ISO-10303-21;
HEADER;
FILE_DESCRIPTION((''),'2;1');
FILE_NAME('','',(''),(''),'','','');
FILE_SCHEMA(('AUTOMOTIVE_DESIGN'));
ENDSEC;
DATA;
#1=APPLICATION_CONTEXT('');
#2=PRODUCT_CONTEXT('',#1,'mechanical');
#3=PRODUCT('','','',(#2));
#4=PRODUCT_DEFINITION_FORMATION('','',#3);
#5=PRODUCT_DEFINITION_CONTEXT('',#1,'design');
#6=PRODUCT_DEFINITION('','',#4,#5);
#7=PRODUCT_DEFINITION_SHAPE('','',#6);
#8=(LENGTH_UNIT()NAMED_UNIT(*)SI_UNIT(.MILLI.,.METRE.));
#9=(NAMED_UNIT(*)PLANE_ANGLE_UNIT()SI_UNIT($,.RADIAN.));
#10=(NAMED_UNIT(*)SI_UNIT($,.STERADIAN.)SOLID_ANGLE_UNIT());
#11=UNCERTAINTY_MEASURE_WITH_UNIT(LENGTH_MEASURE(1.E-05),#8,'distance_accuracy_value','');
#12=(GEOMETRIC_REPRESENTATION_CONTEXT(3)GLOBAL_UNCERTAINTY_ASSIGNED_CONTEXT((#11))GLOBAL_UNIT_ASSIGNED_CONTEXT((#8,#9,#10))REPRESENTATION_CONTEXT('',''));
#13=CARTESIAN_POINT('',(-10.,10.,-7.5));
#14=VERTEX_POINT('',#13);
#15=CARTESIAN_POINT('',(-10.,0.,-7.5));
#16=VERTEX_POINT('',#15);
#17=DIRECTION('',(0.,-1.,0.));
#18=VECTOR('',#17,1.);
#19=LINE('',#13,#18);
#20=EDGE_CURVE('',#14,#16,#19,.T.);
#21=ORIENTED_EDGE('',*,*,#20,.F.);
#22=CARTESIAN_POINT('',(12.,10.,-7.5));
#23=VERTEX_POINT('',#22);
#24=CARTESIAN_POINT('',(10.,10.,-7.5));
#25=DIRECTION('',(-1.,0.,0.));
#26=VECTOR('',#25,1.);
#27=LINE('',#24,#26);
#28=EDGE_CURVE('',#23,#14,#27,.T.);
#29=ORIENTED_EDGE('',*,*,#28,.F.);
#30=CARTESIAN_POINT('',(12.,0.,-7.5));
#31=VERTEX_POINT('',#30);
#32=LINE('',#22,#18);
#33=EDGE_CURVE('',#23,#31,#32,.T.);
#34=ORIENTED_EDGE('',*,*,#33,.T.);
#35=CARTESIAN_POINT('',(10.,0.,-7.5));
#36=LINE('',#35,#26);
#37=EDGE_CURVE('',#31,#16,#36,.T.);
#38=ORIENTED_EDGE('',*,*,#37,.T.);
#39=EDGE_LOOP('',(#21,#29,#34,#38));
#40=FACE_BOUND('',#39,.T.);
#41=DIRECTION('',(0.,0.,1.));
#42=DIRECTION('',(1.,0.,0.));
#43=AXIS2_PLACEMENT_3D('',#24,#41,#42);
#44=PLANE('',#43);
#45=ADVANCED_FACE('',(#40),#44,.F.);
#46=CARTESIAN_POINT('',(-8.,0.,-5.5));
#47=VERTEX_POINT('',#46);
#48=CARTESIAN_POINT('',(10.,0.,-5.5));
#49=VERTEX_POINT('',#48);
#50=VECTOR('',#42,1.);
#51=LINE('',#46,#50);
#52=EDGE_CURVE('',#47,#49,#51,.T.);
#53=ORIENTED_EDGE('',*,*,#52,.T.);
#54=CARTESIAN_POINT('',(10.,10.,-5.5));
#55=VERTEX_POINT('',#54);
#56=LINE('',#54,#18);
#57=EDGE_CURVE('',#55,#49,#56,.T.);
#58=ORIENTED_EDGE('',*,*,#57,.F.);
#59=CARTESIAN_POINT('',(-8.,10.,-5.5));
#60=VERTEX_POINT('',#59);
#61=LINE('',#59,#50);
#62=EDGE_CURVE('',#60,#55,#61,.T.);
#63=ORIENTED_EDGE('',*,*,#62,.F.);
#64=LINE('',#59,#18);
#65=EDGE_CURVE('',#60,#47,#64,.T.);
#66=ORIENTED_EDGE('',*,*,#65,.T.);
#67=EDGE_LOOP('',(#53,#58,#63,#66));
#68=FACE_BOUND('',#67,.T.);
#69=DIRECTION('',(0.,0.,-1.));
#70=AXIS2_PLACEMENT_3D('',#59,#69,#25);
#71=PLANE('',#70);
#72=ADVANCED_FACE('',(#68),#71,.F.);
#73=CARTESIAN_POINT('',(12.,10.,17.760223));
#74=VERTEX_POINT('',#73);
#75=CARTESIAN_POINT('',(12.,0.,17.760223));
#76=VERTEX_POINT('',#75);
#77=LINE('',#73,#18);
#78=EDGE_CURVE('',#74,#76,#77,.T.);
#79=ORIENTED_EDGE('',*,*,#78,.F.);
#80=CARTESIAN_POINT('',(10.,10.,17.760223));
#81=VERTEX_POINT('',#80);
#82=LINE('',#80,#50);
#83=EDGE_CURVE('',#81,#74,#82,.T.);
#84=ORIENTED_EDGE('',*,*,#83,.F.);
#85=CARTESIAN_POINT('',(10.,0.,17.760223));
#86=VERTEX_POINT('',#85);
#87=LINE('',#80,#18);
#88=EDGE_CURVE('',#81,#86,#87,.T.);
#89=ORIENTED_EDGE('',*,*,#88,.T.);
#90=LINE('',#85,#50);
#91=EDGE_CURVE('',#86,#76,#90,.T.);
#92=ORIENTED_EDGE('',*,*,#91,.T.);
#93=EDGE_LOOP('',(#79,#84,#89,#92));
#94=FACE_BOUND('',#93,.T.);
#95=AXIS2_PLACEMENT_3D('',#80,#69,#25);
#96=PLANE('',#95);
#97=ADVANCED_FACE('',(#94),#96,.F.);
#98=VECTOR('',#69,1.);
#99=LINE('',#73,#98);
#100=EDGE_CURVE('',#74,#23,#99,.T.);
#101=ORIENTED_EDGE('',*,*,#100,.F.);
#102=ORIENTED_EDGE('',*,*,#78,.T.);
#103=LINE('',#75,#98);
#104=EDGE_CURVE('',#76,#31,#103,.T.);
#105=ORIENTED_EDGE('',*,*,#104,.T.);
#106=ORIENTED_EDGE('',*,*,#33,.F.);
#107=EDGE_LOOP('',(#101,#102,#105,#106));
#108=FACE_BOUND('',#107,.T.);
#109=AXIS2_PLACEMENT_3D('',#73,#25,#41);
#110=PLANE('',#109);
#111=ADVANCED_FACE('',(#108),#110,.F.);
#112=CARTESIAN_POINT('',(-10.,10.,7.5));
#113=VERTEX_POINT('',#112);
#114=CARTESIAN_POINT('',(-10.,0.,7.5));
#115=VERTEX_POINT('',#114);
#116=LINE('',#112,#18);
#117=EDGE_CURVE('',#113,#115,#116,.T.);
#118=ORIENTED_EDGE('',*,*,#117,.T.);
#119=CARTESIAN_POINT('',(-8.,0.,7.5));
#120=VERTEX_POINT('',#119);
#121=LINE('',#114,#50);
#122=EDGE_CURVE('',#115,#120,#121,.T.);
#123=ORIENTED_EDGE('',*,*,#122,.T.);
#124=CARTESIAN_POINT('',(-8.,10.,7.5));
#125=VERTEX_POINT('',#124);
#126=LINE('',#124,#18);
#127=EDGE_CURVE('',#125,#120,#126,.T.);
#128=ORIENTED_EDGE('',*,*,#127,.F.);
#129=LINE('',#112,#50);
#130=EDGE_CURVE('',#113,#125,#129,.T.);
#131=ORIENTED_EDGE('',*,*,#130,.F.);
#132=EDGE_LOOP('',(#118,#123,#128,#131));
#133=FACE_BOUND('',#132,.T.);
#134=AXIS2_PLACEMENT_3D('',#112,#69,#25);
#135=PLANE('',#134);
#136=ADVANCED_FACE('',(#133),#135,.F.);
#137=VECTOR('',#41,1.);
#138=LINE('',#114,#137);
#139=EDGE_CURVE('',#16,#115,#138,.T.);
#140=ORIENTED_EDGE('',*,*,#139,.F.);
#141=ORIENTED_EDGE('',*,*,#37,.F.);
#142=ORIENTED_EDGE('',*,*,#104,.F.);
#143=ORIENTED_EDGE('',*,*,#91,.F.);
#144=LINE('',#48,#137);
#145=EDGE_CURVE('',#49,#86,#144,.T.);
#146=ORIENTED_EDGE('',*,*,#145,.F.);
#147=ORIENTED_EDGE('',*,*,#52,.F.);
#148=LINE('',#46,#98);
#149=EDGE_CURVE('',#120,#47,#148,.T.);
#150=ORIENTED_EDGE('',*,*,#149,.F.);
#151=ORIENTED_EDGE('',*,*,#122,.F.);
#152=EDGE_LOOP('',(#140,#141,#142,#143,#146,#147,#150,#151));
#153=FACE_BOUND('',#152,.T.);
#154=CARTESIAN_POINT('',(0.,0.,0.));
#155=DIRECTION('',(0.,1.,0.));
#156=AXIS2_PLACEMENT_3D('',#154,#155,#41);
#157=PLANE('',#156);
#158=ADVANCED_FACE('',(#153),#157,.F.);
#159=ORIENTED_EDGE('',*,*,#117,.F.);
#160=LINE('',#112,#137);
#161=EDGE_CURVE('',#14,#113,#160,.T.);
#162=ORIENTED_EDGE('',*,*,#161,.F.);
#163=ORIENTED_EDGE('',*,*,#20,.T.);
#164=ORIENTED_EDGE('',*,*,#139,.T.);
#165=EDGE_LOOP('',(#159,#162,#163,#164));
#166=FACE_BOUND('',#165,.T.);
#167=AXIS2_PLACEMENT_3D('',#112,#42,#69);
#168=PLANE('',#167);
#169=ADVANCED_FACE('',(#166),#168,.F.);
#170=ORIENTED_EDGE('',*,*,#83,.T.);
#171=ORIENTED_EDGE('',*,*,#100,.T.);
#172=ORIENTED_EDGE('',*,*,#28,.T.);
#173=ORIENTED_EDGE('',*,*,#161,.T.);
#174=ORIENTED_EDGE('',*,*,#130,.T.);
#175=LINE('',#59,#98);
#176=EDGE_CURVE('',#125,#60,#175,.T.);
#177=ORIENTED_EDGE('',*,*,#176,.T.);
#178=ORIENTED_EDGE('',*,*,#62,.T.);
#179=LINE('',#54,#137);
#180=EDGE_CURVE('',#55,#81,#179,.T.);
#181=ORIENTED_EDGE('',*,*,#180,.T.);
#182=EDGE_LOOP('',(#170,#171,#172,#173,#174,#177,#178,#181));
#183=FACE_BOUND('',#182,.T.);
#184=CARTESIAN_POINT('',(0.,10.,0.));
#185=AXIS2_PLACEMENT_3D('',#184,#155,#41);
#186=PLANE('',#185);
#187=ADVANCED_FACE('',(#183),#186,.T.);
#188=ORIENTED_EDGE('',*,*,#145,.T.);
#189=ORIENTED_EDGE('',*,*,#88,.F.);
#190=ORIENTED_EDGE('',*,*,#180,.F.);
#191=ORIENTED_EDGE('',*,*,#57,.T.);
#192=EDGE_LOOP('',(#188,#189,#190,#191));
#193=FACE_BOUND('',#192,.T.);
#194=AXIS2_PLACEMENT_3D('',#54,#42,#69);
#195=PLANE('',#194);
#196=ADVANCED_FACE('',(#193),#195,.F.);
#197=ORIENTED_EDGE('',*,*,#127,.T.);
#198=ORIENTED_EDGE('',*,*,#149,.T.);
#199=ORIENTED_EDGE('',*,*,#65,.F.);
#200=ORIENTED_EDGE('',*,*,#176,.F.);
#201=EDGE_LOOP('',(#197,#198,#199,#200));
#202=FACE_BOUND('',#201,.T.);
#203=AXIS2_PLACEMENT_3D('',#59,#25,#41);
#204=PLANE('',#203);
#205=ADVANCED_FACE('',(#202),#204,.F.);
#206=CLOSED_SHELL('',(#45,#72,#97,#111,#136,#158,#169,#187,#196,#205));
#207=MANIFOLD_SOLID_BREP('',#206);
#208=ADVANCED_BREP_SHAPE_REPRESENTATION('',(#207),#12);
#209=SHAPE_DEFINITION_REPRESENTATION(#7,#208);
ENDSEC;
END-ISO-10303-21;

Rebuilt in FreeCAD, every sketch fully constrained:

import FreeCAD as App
import Part
import Sketcher


def add_polygon(sketch, points):
    """Adds a closed chain of lines whose ends are joined by coincident constraints."""
    first, n = sketch.GeometryCount, len(points)
    for a, b in zip(points, points[1:] + points[:1]):
        sketch.addGeometry(Part.LineSegment(App.Vector(*a, 0), App.Vector(*b, 0)), False)
    for i in range(n):
        sketch.addConstraint(Sketcher.Constraint("Coincident", first + i, 2, first + (i + 1) % n, 1))

doc = App.newDocument("Part")
params = doc.addObject("Spreadsheet::Sheet", "Params")
for row, (alias, value) in enumerate([
    ("sketch1_width", "2 mm"),
    ("sketch1_width2", "18 mm"),
    ("sketch1_height", "13 mm"),
    ("sketch1_height2", "15 mm"),
    ("pad1_length", "10 mm"),
], start=1):
    params.set(f"A{row}", alias)
    params.set(f"B{row}", "=" + value)
    params.setAlias(f"B{row}", alias)

body = doc.addObject("PartDesign::Body", "Body")

sketch1 = doc.addObject("Sketcher::SketchObject", "Sketch")
body.addObject(sketch1)
sketch1.AttachmentSupport = (doc.XZ_Plane, [""])
sketch1.MapMode = "FlatFace"
add_polygon(sketch1, [(-10, 7.5), (-8, 7.5), (-8, -5.5), (10, -5.5), (10, 17.8), (12, 17.8), (12, -7.5), (-10, -7.5)])
sketch1.addConstraint(Sketcher.Constraint("Horizontal", 0))
sketch1.addConstraint(Sketcher.Constraint("Vertical", 1))
sketch1.addConstraint(Sketcher.Constraint("Horizontal", 2))
sketch1.addConstraint(Sketcher.Constraint("Vertical", 3))
sketch1.addConstraint(Sketcher.Constraint("Horizontal", 4))
sketch1.addConstraint(Sketcher.Constraint("Vertical", 5))
sketch1.addConstraint(Sketcher.Constraint("Horizontal", 6))
sketch1.addConstraint(Sketcher.Constraint("Vertical", 7))
sketch1.addConstraint(Sketcher.Constraint("Equal", 0, 4))
sketch1.addConstraint(Sketcher.Constraint("DistanceX", 0, 1, 0, 2, 2.0))
sketch1.addConstraint(Sketcher.Constraint("DistanceX", 2, 1, 2, 2, 18.0))
sketch1.addConstraint(Sketcher.Constraint("DistanceY", 1, 2, 1, 1, 13.0))
sketch1.addConstraint(Sketcher.Constraint("DistanceY", 7, 1, 7, 2, 15.0))
sketch1.addConstraint(Sketcher.Constraint("DistanceX", 0, 2, -1, 1, 8.0))
sketch1.addConstraint(Sketcher.Constraint("DistanceY", -1, 1, 0, 2, 7.5))
sketch1.addConstraint(Sketcher.Constraint("DistanceY", 3, 1, 3, 2, 23.260223))
sketch1.setExpression("Constraints[17]", "Params.sketch1_width")
sketch1.setExpression("Constraints[18]", "Params.sketch1_width2")
sketch1.setExpression("Constraints[19]", "Params.sketch1_height")
sketch1.setExpression("Constraints[20]", "Params.sketch1_height2")
pad1 = doc.addObject("PartDesign::Pad", "Pad")
body.addObject(pad1)
pad1.Profile = sketch1
pad1.setExpression("Length", "Params.pad1_length")
pad1.Reversed = True

doc.recompute()
